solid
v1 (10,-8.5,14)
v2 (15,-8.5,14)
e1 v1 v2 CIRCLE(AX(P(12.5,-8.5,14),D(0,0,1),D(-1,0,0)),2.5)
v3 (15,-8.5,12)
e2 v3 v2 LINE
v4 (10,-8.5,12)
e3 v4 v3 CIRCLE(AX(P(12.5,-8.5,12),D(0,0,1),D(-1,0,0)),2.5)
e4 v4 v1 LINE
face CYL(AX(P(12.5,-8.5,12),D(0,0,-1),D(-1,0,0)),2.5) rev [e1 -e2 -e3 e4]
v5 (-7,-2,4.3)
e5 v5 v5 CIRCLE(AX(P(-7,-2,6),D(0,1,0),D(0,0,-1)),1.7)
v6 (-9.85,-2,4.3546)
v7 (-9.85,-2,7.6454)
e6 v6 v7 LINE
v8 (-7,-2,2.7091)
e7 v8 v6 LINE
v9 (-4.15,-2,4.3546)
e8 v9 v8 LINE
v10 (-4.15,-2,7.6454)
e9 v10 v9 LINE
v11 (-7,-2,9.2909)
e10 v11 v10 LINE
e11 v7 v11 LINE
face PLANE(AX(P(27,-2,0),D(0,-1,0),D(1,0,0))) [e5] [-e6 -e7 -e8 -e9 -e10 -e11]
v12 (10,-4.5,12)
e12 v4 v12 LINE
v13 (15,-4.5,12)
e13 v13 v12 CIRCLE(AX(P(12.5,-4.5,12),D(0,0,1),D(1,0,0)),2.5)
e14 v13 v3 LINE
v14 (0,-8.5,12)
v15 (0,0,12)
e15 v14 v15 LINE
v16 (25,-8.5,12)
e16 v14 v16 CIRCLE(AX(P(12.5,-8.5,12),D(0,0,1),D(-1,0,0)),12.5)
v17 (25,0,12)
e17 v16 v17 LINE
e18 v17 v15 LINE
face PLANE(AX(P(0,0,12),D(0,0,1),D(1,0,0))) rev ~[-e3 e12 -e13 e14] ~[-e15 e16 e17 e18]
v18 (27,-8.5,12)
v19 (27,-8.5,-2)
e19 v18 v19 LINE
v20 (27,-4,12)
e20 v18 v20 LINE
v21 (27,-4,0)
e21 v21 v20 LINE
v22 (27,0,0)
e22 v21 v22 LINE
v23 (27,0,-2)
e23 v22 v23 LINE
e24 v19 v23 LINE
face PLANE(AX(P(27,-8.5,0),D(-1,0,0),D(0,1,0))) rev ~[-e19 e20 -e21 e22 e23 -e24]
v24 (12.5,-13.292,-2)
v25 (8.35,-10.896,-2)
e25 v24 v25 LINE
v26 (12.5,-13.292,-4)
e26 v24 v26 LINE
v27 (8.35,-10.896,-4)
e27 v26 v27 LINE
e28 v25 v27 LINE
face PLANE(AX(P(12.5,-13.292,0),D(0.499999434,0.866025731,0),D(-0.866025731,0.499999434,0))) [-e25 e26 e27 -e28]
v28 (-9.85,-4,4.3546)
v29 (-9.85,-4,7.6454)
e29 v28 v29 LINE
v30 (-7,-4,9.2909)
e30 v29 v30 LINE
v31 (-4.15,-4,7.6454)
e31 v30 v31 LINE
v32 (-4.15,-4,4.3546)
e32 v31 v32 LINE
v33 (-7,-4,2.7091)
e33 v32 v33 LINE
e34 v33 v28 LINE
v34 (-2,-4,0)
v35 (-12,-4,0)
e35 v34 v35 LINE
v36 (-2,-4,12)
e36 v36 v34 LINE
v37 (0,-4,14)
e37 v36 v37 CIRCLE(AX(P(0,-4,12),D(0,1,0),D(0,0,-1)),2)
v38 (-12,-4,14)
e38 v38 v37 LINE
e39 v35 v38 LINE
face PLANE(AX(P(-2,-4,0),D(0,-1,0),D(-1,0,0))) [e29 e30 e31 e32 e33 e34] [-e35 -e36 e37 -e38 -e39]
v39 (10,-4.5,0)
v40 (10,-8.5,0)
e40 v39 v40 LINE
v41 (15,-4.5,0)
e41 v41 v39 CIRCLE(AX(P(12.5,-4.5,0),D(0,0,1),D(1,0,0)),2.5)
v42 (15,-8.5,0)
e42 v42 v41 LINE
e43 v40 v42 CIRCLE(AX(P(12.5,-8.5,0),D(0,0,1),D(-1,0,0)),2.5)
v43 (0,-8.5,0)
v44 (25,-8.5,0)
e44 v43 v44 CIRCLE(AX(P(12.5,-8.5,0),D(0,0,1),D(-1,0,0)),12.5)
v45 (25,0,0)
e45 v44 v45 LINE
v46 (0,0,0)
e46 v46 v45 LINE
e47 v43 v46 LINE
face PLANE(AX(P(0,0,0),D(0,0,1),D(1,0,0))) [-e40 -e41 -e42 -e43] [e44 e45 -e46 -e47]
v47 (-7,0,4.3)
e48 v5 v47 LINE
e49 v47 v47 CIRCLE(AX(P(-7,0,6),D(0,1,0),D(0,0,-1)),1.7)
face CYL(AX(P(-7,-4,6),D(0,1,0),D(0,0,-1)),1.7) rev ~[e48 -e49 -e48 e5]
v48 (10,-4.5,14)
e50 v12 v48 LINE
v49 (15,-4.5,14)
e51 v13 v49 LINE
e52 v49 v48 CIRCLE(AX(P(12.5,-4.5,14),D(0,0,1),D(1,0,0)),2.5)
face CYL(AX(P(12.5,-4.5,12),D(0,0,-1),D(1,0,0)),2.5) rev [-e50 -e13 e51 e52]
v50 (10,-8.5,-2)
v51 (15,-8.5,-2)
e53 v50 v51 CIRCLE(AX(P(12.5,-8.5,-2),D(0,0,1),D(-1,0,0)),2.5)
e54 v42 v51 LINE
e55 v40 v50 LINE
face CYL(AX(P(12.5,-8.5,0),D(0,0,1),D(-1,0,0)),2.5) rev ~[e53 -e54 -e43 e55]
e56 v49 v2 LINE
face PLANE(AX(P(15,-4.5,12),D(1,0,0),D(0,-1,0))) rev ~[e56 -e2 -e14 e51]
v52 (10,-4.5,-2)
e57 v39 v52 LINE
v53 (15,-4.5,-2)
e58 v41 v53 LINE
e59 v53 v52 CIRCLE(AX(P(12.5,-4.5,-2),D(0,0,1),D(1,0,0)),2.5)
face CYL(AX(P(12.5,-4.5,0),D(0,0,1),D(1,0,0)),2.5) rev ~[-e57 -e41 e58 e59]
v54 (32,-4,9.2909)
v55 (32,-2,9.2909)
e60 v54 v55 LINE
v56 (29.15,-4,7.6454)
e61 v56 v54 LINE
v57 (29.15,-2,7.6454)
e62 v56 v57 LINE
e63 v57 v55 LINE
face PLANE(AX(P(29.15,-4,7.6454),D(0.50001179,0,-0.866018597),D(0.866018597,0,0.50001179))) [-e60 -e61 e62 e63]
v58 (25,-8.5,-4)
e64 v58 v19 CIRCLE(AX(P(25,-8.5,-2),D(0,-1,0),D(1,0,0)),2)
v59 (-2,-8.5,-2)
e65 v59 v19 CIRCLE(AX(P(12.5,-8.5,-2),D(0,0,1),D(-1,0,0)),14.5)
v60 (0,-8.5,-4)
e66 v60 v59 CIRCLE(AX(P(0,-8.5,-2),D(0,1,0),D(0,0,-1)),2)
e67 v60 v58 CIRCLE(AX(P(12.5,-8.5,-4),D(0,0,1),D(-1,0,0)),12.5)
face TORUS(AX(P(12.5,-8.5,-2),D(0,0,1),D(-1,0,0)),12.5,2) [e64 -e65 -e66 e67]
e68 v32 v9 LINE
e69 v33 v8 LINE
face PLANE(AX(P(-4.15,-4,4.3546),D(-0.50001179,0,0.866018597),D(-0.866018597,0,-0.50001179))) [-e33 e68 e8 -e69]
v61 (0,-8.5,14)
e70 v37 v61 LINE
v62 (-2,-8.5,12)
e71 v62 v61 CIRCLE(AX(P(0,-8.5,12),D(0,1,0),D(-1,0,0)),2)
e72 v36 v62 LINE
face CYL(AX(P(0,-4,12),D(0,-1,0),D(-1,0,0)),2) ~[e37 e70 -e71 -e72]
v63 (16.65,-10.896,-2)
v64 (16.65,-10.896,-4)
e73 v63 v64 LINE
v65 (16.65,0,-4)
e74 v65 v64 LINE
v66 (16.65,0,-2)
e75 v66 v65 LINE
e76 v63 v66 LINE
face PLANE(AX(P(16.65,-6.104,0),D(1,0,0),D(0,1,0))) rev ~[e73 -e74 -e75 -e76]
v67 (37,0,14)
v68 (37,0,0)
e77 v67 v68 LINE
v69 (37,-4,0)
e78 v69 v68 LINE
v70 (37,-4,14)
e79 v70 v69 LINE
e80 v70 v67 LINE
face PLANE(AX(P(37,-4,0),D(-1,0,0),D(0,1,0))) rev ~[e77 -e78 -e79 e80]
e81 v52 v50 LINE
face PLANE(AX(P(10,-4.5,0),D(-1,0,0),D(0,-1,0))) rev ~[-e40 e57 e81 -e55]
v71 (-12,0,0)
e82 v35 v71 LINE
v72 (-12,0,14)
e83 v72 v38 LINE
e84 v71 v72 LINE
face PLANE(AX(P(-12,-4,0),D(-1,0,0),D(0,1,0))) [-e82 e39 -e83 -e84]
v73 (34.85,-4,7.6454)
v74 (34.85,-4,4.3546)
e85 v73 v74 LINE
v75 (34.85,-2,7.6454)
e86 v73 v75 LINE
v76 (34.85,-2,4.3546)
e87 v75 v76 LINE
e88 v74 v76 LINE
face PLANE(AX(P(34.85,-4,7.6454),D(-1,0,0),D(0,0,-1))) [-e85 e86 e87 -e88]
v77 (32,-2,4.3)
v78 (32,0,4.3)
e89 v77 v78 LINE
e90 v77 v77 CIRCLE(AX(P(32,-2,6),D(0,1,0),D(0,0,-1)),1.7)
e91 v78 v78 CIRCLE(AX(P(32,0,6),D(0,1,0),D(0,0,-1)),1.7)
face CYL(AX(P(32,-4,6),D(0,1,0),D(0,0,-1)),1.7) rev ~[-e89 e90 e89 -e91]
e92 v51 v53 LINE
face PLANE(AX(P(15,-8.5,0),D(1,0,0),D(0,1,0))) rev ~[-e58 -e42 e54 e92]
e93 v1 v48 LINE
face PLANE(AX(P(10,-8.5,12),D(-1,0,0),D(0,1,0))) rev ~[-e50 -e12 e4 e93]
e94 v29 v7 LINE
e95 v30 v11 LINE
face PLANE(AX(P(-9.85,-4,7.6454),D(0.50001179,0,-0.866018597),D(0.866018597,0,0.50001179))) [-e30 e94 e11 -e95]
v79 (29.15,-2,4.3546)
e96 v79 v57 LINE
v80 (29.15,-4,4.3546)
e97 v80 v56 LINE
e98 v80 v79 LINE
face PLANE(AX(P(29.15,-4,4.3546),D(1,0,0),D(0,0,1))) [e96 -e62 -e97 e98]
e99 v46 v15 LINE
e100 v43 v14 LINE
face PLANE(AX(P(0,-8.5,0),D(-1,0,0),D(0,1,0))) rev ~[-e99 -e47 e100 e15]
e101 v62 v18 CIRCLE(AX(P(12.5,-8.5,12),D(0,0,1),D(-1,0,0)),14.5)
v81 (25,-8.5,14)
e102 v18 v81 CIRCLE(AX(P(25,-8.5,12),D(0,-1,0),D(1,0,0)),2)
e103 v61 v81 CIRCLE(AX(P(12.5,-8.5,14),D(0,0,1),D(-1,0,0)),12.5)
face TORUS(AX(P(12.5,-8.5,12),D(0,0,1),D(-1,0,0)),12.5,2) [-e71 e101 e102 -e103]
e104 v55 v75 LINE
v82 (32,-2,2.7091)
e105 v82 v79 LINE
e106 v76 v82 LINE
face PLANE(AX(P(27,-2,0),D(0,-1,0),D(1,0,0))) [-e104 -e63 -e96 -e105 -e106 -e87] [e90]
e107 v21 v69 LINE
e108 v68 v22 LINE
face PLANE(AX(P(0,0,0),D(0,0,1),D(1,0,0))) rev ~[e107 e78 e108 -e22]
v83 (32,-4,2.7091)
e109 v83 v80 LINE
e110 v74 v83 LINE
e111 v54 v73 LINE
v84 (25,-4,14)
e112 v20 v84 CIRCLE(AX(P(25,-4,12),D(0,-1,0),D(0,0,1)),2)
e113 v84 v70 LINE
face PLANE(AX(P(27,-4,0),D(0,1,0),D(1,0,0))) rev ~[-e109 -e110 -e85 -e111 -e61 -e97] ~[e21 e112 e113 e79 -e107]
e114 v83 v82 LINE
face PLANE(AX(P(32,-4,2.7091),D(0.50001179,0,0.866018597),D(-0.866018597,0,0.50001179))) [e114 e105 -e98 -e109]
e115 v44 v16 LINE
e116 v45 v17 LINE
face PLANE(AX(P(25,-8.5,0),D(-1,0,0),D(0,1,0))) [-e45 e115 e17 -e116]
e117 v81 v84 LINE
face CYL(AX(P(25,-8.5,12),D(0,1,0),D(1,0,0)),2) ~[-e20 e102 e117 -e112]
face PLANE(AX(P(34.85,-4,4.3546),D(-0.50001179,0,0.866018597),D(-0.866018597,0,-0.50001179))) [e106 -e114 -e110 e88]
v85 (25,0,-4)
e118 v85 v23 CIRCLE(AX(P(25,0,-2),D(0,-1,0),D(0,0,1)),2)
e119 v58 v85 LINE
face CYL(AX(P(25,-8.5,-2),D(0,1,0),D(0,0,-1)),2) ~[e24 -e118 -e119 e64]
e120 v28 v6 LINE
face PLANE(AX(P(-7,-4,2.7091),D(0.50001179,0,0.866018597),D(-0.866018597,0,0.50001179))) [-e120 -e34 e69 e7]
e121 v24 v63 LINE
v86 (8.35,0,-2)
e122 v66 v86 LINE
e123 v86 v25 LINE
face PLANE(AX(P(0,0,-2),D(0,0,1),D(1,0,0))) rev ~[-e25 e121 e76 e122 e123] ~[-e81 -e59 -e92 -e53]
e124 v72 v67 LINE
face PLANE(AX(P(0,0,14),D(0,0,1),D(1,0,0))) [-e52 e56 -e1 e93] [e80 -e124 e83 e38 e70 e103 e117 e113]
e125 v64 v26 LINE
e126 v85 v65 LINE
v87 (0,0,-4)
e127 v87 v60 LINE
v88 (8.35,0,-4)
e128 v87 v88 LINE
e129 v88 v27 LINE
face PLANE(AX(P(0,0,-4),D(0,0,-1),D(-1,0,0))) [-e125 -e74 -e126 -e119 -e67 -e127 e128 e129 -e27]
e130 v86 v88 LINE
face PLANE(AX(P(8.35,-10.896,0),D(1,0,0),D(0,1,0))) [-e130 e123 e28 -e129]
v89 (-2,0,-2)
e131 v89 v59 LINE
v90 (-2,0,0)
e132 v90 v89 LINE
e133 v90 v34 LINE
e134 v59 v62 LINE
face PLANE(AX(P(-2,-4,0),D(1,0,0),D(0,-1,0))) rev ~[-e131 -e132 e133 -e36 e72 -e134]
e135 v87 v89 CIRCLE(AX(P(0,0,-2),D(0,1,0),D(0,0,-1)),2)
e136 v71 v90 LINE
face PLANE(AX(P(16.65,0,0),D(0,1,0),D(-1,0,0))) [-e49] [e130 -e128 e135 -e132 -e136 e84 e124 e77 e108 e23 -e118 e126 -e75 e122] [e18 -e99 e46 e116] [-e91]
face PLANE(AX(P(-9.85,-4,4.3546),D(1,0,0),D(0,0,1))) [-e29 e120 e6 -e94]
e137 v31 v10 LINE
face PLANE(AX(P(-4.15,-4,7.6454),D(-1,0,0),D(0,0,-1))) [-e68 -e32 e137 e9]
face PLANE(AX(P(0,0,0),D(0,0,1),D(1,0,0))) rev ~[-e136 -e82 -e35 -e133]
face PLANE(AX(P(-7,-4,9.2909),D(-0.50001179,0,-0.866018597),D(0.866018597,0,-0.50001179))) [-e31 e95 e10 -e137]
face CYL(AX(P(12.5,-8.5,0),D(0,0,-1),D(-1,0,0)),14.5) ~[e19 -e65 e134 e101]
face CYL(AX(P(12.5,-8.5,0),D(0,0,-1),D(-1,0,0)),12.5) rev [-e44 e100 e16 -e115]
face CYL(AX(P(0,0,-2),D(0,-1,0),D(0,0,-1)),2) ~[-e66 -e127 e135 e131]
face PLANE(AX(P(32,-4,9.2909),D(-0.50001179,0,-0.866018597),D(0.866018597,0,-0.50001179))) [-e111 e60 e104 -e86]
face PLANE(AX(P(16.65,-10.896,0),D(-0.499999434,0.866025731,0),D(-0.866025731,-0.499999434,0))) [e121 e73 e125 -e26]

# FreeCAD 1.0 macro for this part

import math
import FreeCAD as App
import Part
import Sketcher
Q = App.Units.Quantity


def edges_at(feature, points):
    """Names of the edges that pass closest to the given points."""
    edges = feature.Shape.Edges
    near = lambda p: min(range(len(edges)), key=lambda i: edges[i].distToShape(Part.Vertex(*p))[0])
    return sorted({f"Edge{near(p) + 1}" for p in points})

doc = App.newDocument("Part")
params = doc.addObject("Spreadsheet::Sheet", "Params")
for row, (alias, value) in enumerate([
    ("sketch1_radius", "12.5 mm"),
    ("sketch1_height", "4 mm"),
    ("sketch1_height2", "8.5 mm"),
    ("sketch1_width", "12 mm"),
    ("pad1_length", "12 mm"),
    ("sketch2_radius", "14.5 mm"),
    ("sketch2_height", "8.5 mm"),
    ("sketch2_width", "10.35 mm"),
    ("pad2_length", "4 mm"),
    ("sketch3_radius", "2.5 mm"),
    ("sketch3_height", "4 mm"),
    ("sketch3_width", "8.3 mm"),
    ("pad3_length", "2 mm"),
    ("sketch4_radius", "14.5 mm"),
    ("sketch4_radius2", "2.5 mm"),
    ("sketch4_width", "10 mm"),
    ("sketch4_height", "4 mm"),
    ("sketch4_height2", "4.5 mm"),
    ("pad4_length", "2 mm"),
    ("fillet_radius", "2 mm"),
    ("pocket1_length", "2 mm"),
    ("sketch6_diameter", "3.4 mm"),
    ("hole_diameter", "3.4 mm"),
], start=1):
    params.set(f"A{row}", alias)
    params.set(f"B{row}", "=" + value)
    params.setAlias(f"B{row}", alias)

body = doc.addObject("PartDesign::Body", "Body")

# Sketch on XY plane
sketch1 = doc.addObject("Sketcher::SketchObject", "Sketch")
body.addObject(sketch1)
sketch1.AttachmentSupport = (doc.XY_Plane, [""])
sketch1.MapMode = "FlatFace"
sketch1.addGeometry(Part.LineSegment(App.Vector(25, 0, 0), App.Vector(25, -8.5, 0)), False)
sketch1.addGeometry(Part.ArcOfCircle(Part.Circle(App.Vector(12.5, -8.5, 0), App.Vector(0, 0, 1), 12.5), math.radians(180), math.radians(360)), False)
sketch1.addGeometry(Part.LineSegment(App.Vector(0, -8.5, 0), App.Vector(0, 0, 0)), False)
sketch1.addGeometry(Part.LineSegment(App.Vector(0, 0, 0), App.Vector(-12, 0, 0)), False)
sketch1.addGeometry(Part.LineSegment(App.Vector(-12, 0, 0), App.Vector(-12, -4, 0)), False)
sketch1.addGeometry(Part.LineSegment(App.Vector(-12, -4, 0), App.Vector(-2, -4, 0)), False)
sketch1.addGeometry(Part.LineSegment(App.Vector(-2, -4, 0), App.Vector(-2, -8.5, 0)), False)
sketch1.addGeometry(Part.ArcOfCircle(Part.Circle(App.Vector(12.5, -8.5, 0), App.Vector(0, 0, 1), 14.5), math.radians(180), math.radians(360)), False)
sketch1.addGeometry(Part.LineSegment(App.Vector(27, -8.5, 0), App.Vector(27, -4, 0)), False)
sketch1.addGeometry(Part.LineSegment(App.Vector(27, -4, 0), App.Vector(37, -4, 0)), False)
sketch1.addGeometry(Part.LineSegment(App.Vector(37, -4, 0), App.Vector(37, 0, 0)), False)
sketch1.addGeometry(Part.LineSegment(App.Vector(37, 0, 0), App.Vector(25, 0, 0)), False)
sketch1.addConstraint(Sketcher.Constraint("Tangent", 0, 2, 1, 2))
sketch1.addConstraint(Sketcher.Constraint("Tangent", 1, 1, 2, 1))
sketch1.addConstraint(Sketcher.Constraint("Coincident", 2, 2, 3, 1))
sketch1.addConstraint(Sketcher.Constraint("Coincident", 3, 2, 4, 1))
sketch1.addConstraint(Sketcher.Constraint("Coincident", 4, 2, 5, 1))
sketch1.addConstraint(Sketcher.Constraint("Coincident", 5, 2, 6, 1))
sketch1.addConstraint(Sketcher.Constraint("Tangent", 6, 2, 7, 1))
sketch1.addConstraint(Sketcher.Constraint("Tangent", 7, 2, 8, 1))
sketch1.addConstraint(Sketcher.Constraint("Coincident", 8, 2, 9, 1))
sketch1.addConstraint(Sketcher.Constraint("Coincident", 9, 2, 10, 1))
sketch1.addConstraint(Sketcher.Constraint("Coincident", 10, 2, 11, 1))
sketch1.addConstraint(Sketcher.Constraint("Coincident", 11, 2, 0, 1))
sketch1.addConstraint(Sketcher.Constraint("Vertical", 0))
sketch1.addConstraint(Sketcher.Constraint("Vertical", 2))
sketch1.addConstraint(Sketcher.Constraint("Horizontal", 3))
sketch1.addConstraint(Sketcher.Constraint("Vertical", 4))
sketch1.addConstraint(Sketcher.Constraint("Horizontal", 5))
sketch1.addConstraint(Sketcher.Constraint("Vertical", 6))
sketch1.addConstraint(Sketcher.Constraint("Vertical", 8))
sketch1.addConstraint(Sketcher.Constraint("Horizontal", 9))
sketch1.addConstraint(Sketcher.Constraint("Vertical", 10))
sketch1.addConstraint(Sketcher.Constraint("Horizontal", 11))
sketch1.addConstraint(Sketcher.Constraint("Coincident", 2, 2, -1, 1))
sketch1.addConstraint(Sketcher.Constraint("Coincident", 7, 3, 1, 3))
sketch1.addConstraint(Sketcher.Constraint("PointOnObject", 10, 2, -1))
sketch1.addConstraint(Sketcher.Constraint("Horizontal", 5, 2, 8, 2))
sketch1.addConstraint(Sketcher.Constraint("Equal", 5, 9))
sketch1.addConstraint(Sketcher.Constraint("Radius", 1, Q("12.5 mm")))
sketch1.addConstraint(Sketcher.Constraint("DistanceY", 4, 2, 4, 1, Q("4 mm")))
sketch1.addConstraint(Sketcher.Constraint("DistanceY", 0, 2, 0, 1, Q("8.5 mm")))
sketch1.addConstraint(Sketcher.Constraint("DistanceX", 5, 2, -1, 1, Q("2 mm")))
sketch1.addConstraint(Sketcher.Constraint("DistanceX", 3, 2, 3, 1, Q("12 mm")))
sketch1.setExpression("Constraints[27]", "Params.sketch1_radius")
sketch1.setExpression("Constraints[28]", "Params.sketch1_height")
sketch1.setExpression("Constraints[29]", "Params.sketch1_height2")
sketch1.setExpression("Constraints[31]", "Params.sketch1_width")
pad1 = doc.addObject("PartDesign::Pad", "Pad")
body.addObject(pad1)
pad1.Profile = sketch1
pad1.setExpression("Length", "Params.pad1_length")

# Sketch on XY plane
sketch2 = doc.addObject("Sketcher::SketchObject", "Sketch001")
body.addObject(sketch2)
sketch2.AttachmentSupport = (doc.XY_Plane, [""])
sketch2.MapMode = "FlatFace"
sketch2.addGeometry(Part.LineSegment(App.Vector(16.65, 0, 0), App.Vector(27, 0, 0)), False)
sketch2.addGeometry(Part.LineSegment(App.Vector(27, 0, 0), App.Vector(27, -8.5, 0)), False)
sketch2.addGeometry(Part.ArcOfCircle(Part.Circle(App.Vector(12.5, -8.5, 0), App.Vector(0, 0, 1), 14.5), math.radians(180), math.radians(360)), False)
sketch2.addGeometry(Part.LineSegment(App.Vector(-2, -8.5, 0), App.Vector(-2, 0, 0)), False)
sketch2.addGeometry(Part.LineSegment(App.Vector(-2, 0, 0), App.Vector(8.35, 0, 0)), False)
sketch2.addGeometry(Part.LineSegment(App.Vector(8.35, 0, 0), App.Vector(8.35, -10.896, 0)), False)
sketch2.addGeometry(Part.LineSegment(App.Vector(8.35, -10.896, 0), App.Vector(12.5, -13.292, 0)), False)
sketch2.addGeometry(Part.LineSegment(App.Vector(12.5, -13.292, 0), App.Vector(16.65, -10.896, 0)), False)
sketch2.addGeometry(Part.LineSegment(App.Vector(16.65, -10.896, 0), App.Vector(16.65, 0, 0)), False)
sketch2.addConstraint(Sketcher.Constraint("Coincident", 0, 2, 1, 1))
sketch2.addConstraint(Sketcher.Constraint("Tangent", 1, 2, 2, 2))
sketch2.addConstraint(Sketcher.Constraint("Tangent", 2, 1, 3, 1))
sketch2.addConstraint(Sketcher.Constraint("Coincident", 3, 2, 4, 1))
sketch2.addConstraint(Sketcher.Constraint("Coincident", 4, 2, 5, 1))
sketch2.addConstraint(Sketcher.Constraint("Coincident", 5, 2, 6, 1))
sketch2.addConstraint(Sketcher.Constraint("Coincident", 6, 2, 7, 1))
sketch2.addConstraint(Sketcher.Constraint("Coincident", 7, 2, 8, 1))
sketch2.addConstraint(Sketcher.Constraint("Coincident", 8, 2, 0, 1))
sketch2.addConstraint(Sketcher.Constraint("Horizontal", 0))
sketch2.addConstraint(Sketcher.Constraint("Vertical", 1))
sketch2.addConstraint(Sketcher.Constraint("Vertical", 3))
sketch2.addConstraint(Sketcher.Constraint("Horizontal", 4))
sketch2.addConstraint(Sketcher.Constraint("Vertical", 5))
sketch2.addConstraint(Sketcher.Constraint("Vertical", 8))
sketch2.addConstraint(Sketcher.Constraint("PointOnObject", 0, 2, -1))
sketch2.addConstraint(Sketcher.Constraint("PointOnObject", 3, 2, -1))
sketch2.addConstraint(Sketcher.Constraint("Horizontal", 5, 2, 7, 2))
sketch2.addConstraint(Sketcher.Constraint("Vertical", 2, 3, 6, 2))
sketch2.addConstraint(Sketcher.Constraint("Equal", 0, 4))
sketch2.addConstraint(Sketcher.Constraint("Radius", 2, Q("14.5 mm")))
sketch2.addConstraint(Sketcher.Constraint("Angle", 6, Q("-30 deg")))
sketch2.addConstraint(Sketcher.Constraint("DistanceY", 1, 2, 1, 1, Q("8.5 mm")))
sketch2.addConstraint(Sketcher.Constraint("DistanceX", -1, 1, 0, 2, Q("27 mm")))
sketch2.addConstraint(Sketcher.Constraint("DistanceX", 0, 1, 0, 2, Q("10.35 mm")))
sketch2.addConstraint(Sketcher.Constraint("DistanceY", 5, 2, 5, 1, Q("10.896 mm")))
sketch2.setExpression("Constraints[20]", "Params.sketch2_radius")
sketch2.setExpression("Constraints[22]", "Params.sketch2_height")
sketch2.setExpression("Constraints[24]", "Params.sketch2_width")
pad2 = doc.addObject("PartDesign::Pad", "Pad001")
body.addObject(pad2)
pad2.Profile = sketch2
pad2.setExpression("Length", "Params.pad2_length")
pad2.Reversed = True

# Sketch on XY plane
sketch3 = doc.addObject("Sketcher::SketchObject", "Sketch002")
body.addObject(sketch3)
sketch3.AttachmentSupport = (doc.XY_Plane, [""])
sketch3.MapMode = "FlatFace"
sketch3.addGeometry(Part.LineSegment(App.Vector(16.65, 0, 0), App.Vector(8.35, 0, 0)), False)
sketch3.addGeometry(Part.LineSegment(App.Vector(8.35, 0, 0), App.Vector(8.35, -10.896, 0)), False)
sketch3.addGeometry(Part.LineSegment(App.Vector(8.35, -10.896, 0), App.Vector(12.5, -13.292, 0)), False)
sketch3.addGeometry(Part.LineSegment(App.Vector(12.5, -13.292, 0), App.Vector(16.65, -10.896, 0)), False)
sketch3.addGeometry(Part.LineSegment(App.Vector(16.65, -10.896, 0), App.Vector(16.65, 0, 0)), False)
sketch3.addGeometry(Part.LineSegment(App.Vector(15, -4.5, 0), App.Vector(15, -8.5, 0)), False)
sketch3.addGeometry(Part.ArcOfCircle(Part.Circle(App.Vector(12.5, -8.5, 0), App.Vector(0, 0, 1), 2.5), math.radians(180), math.radians(360)), False)
sketch3.addGeometry(Part.LineSegment(App.Vector(10, -8.5, 0), App.Vector(10, -4.5, 0)), False)
sketch3.addGeometry(Part.ArcOfCircle(Part.Circle(App.Vector(12.5, -4.5, 0), App.Vector(0, 0, 1), 2.5), math.radians(0), math.radians(180)), False)
sketch3.addConstraint(Sketcher.Constraint("Coincident", 0, 2, 1, 1))
sketch3.addConstraint(Sketcher.Constraint("Coincident", 1, 2, 2, 1))
sketch3.addConstraint(Sketcher.Constraint("Coincident", 2, 2, 3, 1))
sketch3.addConstraint(Sketcher.Constraint("Coincident", 3, 2, 4, 1))
sketch3.addConstraint(Sketcher.Constraint("Coincident", 4, 2, 0, 1))
sketch3.addConstraint(Sketcher.Constraint("Tangent", 5, 2, 6, 2))
sketch3.addConstraint(Sketcher.Constraint("Tangent", 6, 1, 7, 1))
sketch3.addConstraint(Sketcher.Constraint("Tangent", 7, 2, 8, 2))
sketch3.addConstraint(Sketcher.Constraint("Tangent", 8, 1, 5, 1))
sketch3.addConstraint(Sketcher.Constraint("Horizontal", 0))
sketch3.addConstraint(Sketcher.Constraint("Vertical", 1))
sketch3.addConstraint(Sketcher.Constraint("Vertical", 4))
sketch3.addConstraint(Sketcher.Constraint("Vertical", 5))
sketch3.addConstraint(Sketcher.Constraint("Vertical", 7))
sketch3.addConstraint(Sketcher.Constraint("PointOnObject", 0, 2, -1))
sketch3.addConstraint(Sketcher.Constraint("Horizontal", 1, 2, 3, 2))
sketch3.addConstraint(Sketcher.Constraint("Vertical", 8, 3, 2, 2))
sketch3.addConstraint(Sketcher.Constraint("Equal", 2, 3))
sketch3.addConstraint(Sketcher.Constraint("Radius", 6, Q("2.5 mm")))
sketch3.addConstraint(Sketcher.Constraint("DistanceY", 5, 2, 5, 1, Q("4 mm")))
sketch3.addConstraint(Sketcher.Constraint("Angle", 2, Q("-30 deg")))
sketch3.addConstraint(Sketcher.Constraint("DistanceX", 0, 2, 0, 1, Q("8.3 mm")))
sketch3.addConstraint(Sketcher.Constraint("DistanceX", -1, 1, 5, 2, Q("15 mm")))
sketch3.addConstraint(Sketcher.Constraint("DistanceY", 6, 3, -1, 1, Q("8.5 mm")))
sketch3.addConstraint(Sketcher.Constraint("DistanceY", 1, 2, 1, 1, Q("10.896 mm")))
sketch3.setExpression("Constraints[18]", "Params.sketch3_radius")
sketch3.setExpression("Constraints[19]", "Params.sketch3_height")
sketch3.setExpression("Constraints[21]", "Params.sketch3_width")
pad3 = doc.addObject("PartDesign::Pad", "Pad002")
body.addObject(pad3)
pad3.Profile = sketch3
pad3.setExpression("Length", "Params.pad3_length")
pad3.Reversed = True

# Sketch on XY plane
sketch4 = doc.addObject("Sketcher::SketchObject", "Sketch003")
body.addObject(sketch4)
sketch4.AttachmentSupport = (doc.XY_Plane, [""])
sketch4.MapMode = "FlatFace"
sketch4.AttachmentOffset = App.Placement(App.Vector(0, 0, 12), App.Rotation())
sketch4.addGeometry(Part.LineSegment(App.Vector(-12, 0, 0), App.Vector(-12, -4, 0)), False)
sketch4.addGeometry(Part.LineSegment(App.Vector(-12, -4, 0), App.Vector(-2, -4, 0)), False)
sketch4.addGeometry(Part.LineSegment(App.Vector(-2, -4, 0), App.Vector(-2, -8.5, 0)), False)
sketch4.addGeometry(Part.ArcOfCircle(Part.Circle(App.Vector(12.5, -8.5, 0), App.Vector(0, 0, 1), 14.5), math.radians(180), math.radians(360)), False)
sketch4.addGeometry(Part.LineSegment(App.Vector(27, -8.5, 0), App.Vector(27, -4, 0)), False)
sketch4.addGeometry(Part.LineSegment(App.Vector(27, -4, 0), App.Vector(37, -4, 0)), False)
sketch4.addGeometry(Part.LineSegment(App.Vector(37, -4, 0), App.Vector(37, 0, 0)), False)
sketch4.addGeometry(Part.LineSegment(App.Vector(37, 0, 0), App.Vector(-12, 0, 0)), False)
sketch4.addGeometry(Part.LineSegment(App.Vector(10, -8.5, 0), App.Vector(10, -4.5, 0)), False)
sketch4.addGeometry(Part.ArcOfCircle(Part.Circle(App.Vector(12.5, -4.5, 0), App.Vector(0, 0, 1), 2.5), math.radians(0), math.radians(180)), False)
sketch4.addGeometry(Part.LineSegment(App.Vector(15, -4.5, 0), App.Vector(15, -8.5, 0)), False)
sketch4.addGeometry(Part.ArcOfCircle(Part.Circle(App.Vector(12.5, -8.5, 0), App.Vector(0, 0, 1), 2.5), math.radians(180), math.radians(360)), False)
sketch4.addConstraint(Sketcher.Constraint("Coincident", 0, 2, 1, 1))
sketch4.addConstraint(Sketcher.Constraint("Coincident", 1, 2, 2, 1))
sketch4.addConstraint(Sketcher.Constraint("Tangent", 2, 2, 3, 1))
sketch4.addConstraint(Sketcher.Constraint("Tangent", 3, 2, 4, 1))
sketch4.addConstraint(Sketcher.Constraint("Coincident", 4, 2, 5, 1))
sketch4.addConstraint(Sketcher.Constraint("Coincident", 5, 2, 6, 1))
sketch4.addConstraint(Sketcher.Constraint("Coincident", 6, 2, 7, 1))
sketch4.addConstraint(Sketcher.Constraint("Coincident", 7, 2, 0, 1))
sketch4.addConstraint(Sketcher.Constraint("Tangent", 8, 2, 9, 2))
sketch4.addConstraint(Sketcher.Constraint("Tangent", 9, 1, 10, 1))
sketch4.addConstraint(Sketcher.Constraint("Tangent", 10, 2, 11, 2))
sketch4.addConstraint(Sketcher.Constraint("Tangent", 11, 1, 8, 1))
sketch4.addConstraint(Sketcher.Constraint("Vertical", 0))
sketch4.addConstraint(Sketcher.Constraint("Horizontal", 1))
sketch4.addConstraint(Sketcher.Constraint("Vertical", 2))
sketch4.addConstraint(Sketcher.Constraint("Vertical", 4))
sketch4.addConstraint(Sketcher.Constraint("Horizontal", 5))
sketch4.addConstraint(Sketcher.Constraint("Vertical", 6))
sketch4.addConstraint(Sketcher.Constraint("Horizontal", 7))
sketch4.addConstraint(Sketcher.Constraint("Vertical", 8))
sketch4.addConstraint(Sketcher.Constraint("Vertical", 10))
sketch4.addConstraint(Sketcher.Constraint("Coincident", 11, 3, 3, 3))
sketch4.addConstraint(Sketcher.Constraint("PointOnObject", 6, 2, -1))
sketch4.addConstraint(Sketcher.Constraint("Horizontal", 1, 2, 4, 2))
sketch4.addConstraint(Sketcher.Constraint("Equal", 1, 5))
sketch4.addConstraint(Sketcher.Constraint("Equal", 6, 8))
sketch4.addConstraint(Sketcher.Constraint("Radius", 3, Q("14.5 mm")))
sketch4.addConstraint(Sketcher.Constraint("Radius", 9, Q("2.5 mm")))
sketch4.addConstraint(Sketcher.Constraint("DistanceX", 1, 1, 1, 2, Q("10 mm")))
sketch4.addConstraint(Sketcher.Constraint("DistanceY", 0, 2, 0, 1, Q("4 mm")))
sketch4.addConstraint(Sketcher.Constraint("DistanceY", 2, 2, 2, 1, Q("4.5 mm")))
sketch4.addConstraint(Sketcher.Constraint("DistanceX", 0, 2, -1, 1, Q("12 mm")))
sketch4.setExpression("Constraints[26]", "Params.sketch4_radius")
sketch4.setExpression("Constraints[27]", "Params.sketch4_radius2")
sketch4.setExpression("Constraints[28]", "Params.sketch4_width")
sketch4.setExpression("Constraints[29]", "Params.sketch4_height")
sketch4.setExpression("Constraints[30]", "Params.sketch4_height2")
pad4 = doc.addObject("PartDesign::Pad", "Pad003")
body.addObject(pad4)
pad4.Profile = sketch4
pad4.setExpression("Length", "Params.pad4_length")
doc.recompute()

fillet = doc.addObject("PartDesign::Fillet", "Fillet")
body.addObject(fillet)
fillet.Base = (pad4, edges_at(pad4, [
    (27, -6.25, 14),
    (-2, -6.25, 14),
    (12.5, -23, 14),
    (-2, -4.25, -4),
    (27, -4.25, -4),
    (12.5, -23, -4),
]))
fillet.setExpression("Radius", "Params.fillet_radius")

# Sketch on XZ plane
sketch5 = doc.addObject("Sketcher::SketchObject", "Sketch004")
body.addObject(sketch5)
sketch5.AttachmentSupport = (doc.XZ_Plane, [""])
sketch5.MapMode = "FlatFace"
sketch5.AttachmentOffset = App.Placement(App.Vector(0, 0, 4), App.Rotation())
sketch5.addGeometry(Part.LineSegment(App.Vector(34.85, 4.3546, 0), App.Vector(34.85, 7.6454, 0)), False)
sketch5.addGeometry(Part.LineSegment(App.Vector(34.85, 7.6454, 0), App.Vector(32, 9.2909, 0)), False)
sketch5.addGeometry(Part.LineSegment(App.Vector(32, 9.2909, 0), App.Vector(29.15, 7.6454, 0)), False)
sketch5.addGeometry(Part.LineSegment(App.Vector(29.15, 7.6454, 0), App.Vector(29.15, 4.3546, 0)), False)
sketch5.addGeometry(Part.LineSegment(App.Vector(29.15, 4.3546, 0), App.Vector(32, 2.7091, 0)), False)
sketch5.addGeometry(Part.LineSegment(App.Vector(32, 2.7091, 0), App.Vector(34.85, 4.3546, 0)), False)
sketch5.addGeometry(Part.LineSegment(App.Vector(-4.15, 4.3546, 0), App.Vector(-4.15, 7.6454, 0)), False)
sketch5.addGeometry(Part.LineSegment(App.Vector(-4.15, 7.6454, 0), App.Vector(-7, 9.2909, 0)), False)
sketch5.addGeometry(Part.LineSegment(App.Vector(-7, 9.2909, 0), App.Vector(-9.85, 7.6454, 0)), False)
sketch5.addGeometry(Part.LineSegment(App.Vector(-9.85, 7.6454, 0), App.Vector(-9.85, 4.3546, 0)), False)
sketch5.addGeometry(Part.LineSegment(App.Vector(-9.85, 4.3546, 0), App.Vector(-7, 2.7091, 0)), False)
sketch5.addGeometry(Part.LineSegment(App.Vector(-7, 2.7091, 0), App.Vector(-4.15, 4.3546, 0)), False)
sketch5.addConstraint(Sketcher.Constraint("Coincident", 0, 2, 1, 1))
sketch5.addConstraint(Sketcher.Constraint("Coincident", 1, 2, 2, 1))
sketch5.addConstraint(Sketcher.Constraint("Coincident", 2, 2, 3, 1))
sketch5.addConstraint(Sketcher.Constraint("Coincident", 3, 2, 4, 1))
sketch5.addConstraint(Sketcher.Constraint("Coincident", 4, 2, 5, 1))
sketch5.addConstraint(Sketcher.Constraint("Coincident", 5, 2, 0, 1))
sketch5.addConstraint(Sketcher.Constraint("Coincident", 6, 2, 7, 1))
sketch5.addConstraint(Sketcher.Constraint("Coincident", 7, 2, 8, 1))
sketch5.addConstraint(Sketcher.Constraint("Coincident", 8, 2, 9, 1))
sketch5.addConstraint(Sketcher.Constraint("Coincident", 9, 2, 10, 1))
sketch5.addConstraint(Sketcher.Constraint("Coincident", 10, 2, 11, 1))
sketch5.addConstraint(Sketcher.Constraint("Coincident", 11, 2, 6, 1))
sketch5.addConstraint(Sketcher.Constraint("Vertical", 0))
sketch5.addConstraint(Sketcher.Constraint("Vertical", 3))
sketch5.addConstraint(Sketcher.Constraint("Vertical", 6))
sketch5.addConstraint(Sketcher.Constraint("Vertical", 9))
sketch5.addConstraint(Sketcher.Constraint("Parallel", 1, 4))
sketch5.addConstraint(Sketcher.Constraint("Parallel", 2, 5))
sketch5.addConstraint(Sketcher.Constraint("Parallel", 4, 7))
sketch5.addConstraint(Sketcher.Constraint("Parallel", 5, 8))
sketch5.addConstraint(Sketcher.Constraint("Parallel", 7, 10))
sketch5.addConstraint(Sketcher.Constraint("Parallel", 8, 11))
sketch5.addConstraint(Sketcher.Constraint("Horizontal", 0, 2, 2, 2))
sketch5.addConstraint(Sketcher.Constraint("Horizontal", 3, 2, 5, 2))
sketch5.addConstraint(Sketcher.Constraint("Horizontal", 2, 2, 6, 2))
sketch5.addConstraint(Sketcher.Constraint("Horizontal", 1, 2, 7, 2))
sketch5.addConstraint(Sketcher.Constraint("Horizontal", 6, 2, 8, 2))
sketch5.addConstraint(Sketcher.Constraint("Horizontal", 5, 2, 9, 2))
sketch5.addConstraint(Sketcher.Constraint("Horizontal", 4, 2, 10, 2))
sketch5.addConstraint(Sketcher.Constraint("Vertical", 1, 2, 4, 2))
sketch5.addConstraint(Sketcher.Constraint("DistanceX", 2, 2, 0, 2, Q("5.7 mm")))
sketch5.addConstraint(Sketcher.Constraint("Angle", 1, Q("149.9992 deg")))
sketch5.addConstraint(Sketcher.Constraint("DistanceX", -1, 1, 1, 2, Q("32 mm")))
sketch5.addConstraint(Sketcher.Constraint("DistanceX", 7, 2, -1, 1, Q("7 mm")))
sketch5.addConstraint(Sketcher.Constraint("DistanceY", 0, 1, 0, 2, Q("3.2908 mm")))
sketch5.addConstraint(Sketcher.Constraint("DistanceY", -1, 1, 1, 2, Q("9.291 mm")))
pocket1 = doc.addObject("PartDesign::Pocket", "Pocket")
body.addObject(pocket1)
pocket1.Profile = sketch5
pocket1.setExpression("Length", "Params.pocket1_length")

# Sketch on XZ plane
sketch6 = doc.addObject("Sketcher::SketchObject", "Sketch005")
body.addObject(sketch6)
sketch6.AttachmentSupport = (doc.XZ_Plane, [""])
sketch6.MapMode = "FlatFace"
sketch6.AttachmentOffset = App.Placement(App.Vector(0, 0, 4), App.Rotation())
sketch6.addGeometry(Part.Circle(App.Vector(32, 6, 0), App.Vector(0, 0, 1), 1.7), False)
sketch6.addGeometry(Part.Circle(App.Vector(-7, 6, 0), App.Vector(0, 0, 1), 1.7), False)
sketch6.addConstraint(Sketcher.Constraint("Equal", 0, 1))
sketch6.addConstraint(Sketcher.Constraint("Horizontal", 0, 3, 1, 3))
sketch6.addConstraint(Sketcher.Constraint("Diameter", 0, Q("3.4 mm")))
sketch6.addConstraint(Sketcher.Constraint("DistanceX", -1, 1, 0, 3, Q("32 mm")))
sketch6.addConstraint(Sketcher.Constraint("DistanceY", -1, 1, 0, 3, Q("6 mm")))
sketch6.addConstraint(Sketcher.Constraint("DistanceX", 1, 3, -1, 1, Q("7 mm")))
sketch6.setExpression("Constraints[2]", "Params.sketch6_diameter")
doc.recompute()
hole = doc.addObject("PartDesign::Hole", "Hole")
body.addObject(hole)
hole.Profile = sketch6
hole.ThreadType = "None"
hole.setExpression("Diameter", "Params.hole_diameter")
hole.DepthType = "ThroughAll"

doc.recompute()
